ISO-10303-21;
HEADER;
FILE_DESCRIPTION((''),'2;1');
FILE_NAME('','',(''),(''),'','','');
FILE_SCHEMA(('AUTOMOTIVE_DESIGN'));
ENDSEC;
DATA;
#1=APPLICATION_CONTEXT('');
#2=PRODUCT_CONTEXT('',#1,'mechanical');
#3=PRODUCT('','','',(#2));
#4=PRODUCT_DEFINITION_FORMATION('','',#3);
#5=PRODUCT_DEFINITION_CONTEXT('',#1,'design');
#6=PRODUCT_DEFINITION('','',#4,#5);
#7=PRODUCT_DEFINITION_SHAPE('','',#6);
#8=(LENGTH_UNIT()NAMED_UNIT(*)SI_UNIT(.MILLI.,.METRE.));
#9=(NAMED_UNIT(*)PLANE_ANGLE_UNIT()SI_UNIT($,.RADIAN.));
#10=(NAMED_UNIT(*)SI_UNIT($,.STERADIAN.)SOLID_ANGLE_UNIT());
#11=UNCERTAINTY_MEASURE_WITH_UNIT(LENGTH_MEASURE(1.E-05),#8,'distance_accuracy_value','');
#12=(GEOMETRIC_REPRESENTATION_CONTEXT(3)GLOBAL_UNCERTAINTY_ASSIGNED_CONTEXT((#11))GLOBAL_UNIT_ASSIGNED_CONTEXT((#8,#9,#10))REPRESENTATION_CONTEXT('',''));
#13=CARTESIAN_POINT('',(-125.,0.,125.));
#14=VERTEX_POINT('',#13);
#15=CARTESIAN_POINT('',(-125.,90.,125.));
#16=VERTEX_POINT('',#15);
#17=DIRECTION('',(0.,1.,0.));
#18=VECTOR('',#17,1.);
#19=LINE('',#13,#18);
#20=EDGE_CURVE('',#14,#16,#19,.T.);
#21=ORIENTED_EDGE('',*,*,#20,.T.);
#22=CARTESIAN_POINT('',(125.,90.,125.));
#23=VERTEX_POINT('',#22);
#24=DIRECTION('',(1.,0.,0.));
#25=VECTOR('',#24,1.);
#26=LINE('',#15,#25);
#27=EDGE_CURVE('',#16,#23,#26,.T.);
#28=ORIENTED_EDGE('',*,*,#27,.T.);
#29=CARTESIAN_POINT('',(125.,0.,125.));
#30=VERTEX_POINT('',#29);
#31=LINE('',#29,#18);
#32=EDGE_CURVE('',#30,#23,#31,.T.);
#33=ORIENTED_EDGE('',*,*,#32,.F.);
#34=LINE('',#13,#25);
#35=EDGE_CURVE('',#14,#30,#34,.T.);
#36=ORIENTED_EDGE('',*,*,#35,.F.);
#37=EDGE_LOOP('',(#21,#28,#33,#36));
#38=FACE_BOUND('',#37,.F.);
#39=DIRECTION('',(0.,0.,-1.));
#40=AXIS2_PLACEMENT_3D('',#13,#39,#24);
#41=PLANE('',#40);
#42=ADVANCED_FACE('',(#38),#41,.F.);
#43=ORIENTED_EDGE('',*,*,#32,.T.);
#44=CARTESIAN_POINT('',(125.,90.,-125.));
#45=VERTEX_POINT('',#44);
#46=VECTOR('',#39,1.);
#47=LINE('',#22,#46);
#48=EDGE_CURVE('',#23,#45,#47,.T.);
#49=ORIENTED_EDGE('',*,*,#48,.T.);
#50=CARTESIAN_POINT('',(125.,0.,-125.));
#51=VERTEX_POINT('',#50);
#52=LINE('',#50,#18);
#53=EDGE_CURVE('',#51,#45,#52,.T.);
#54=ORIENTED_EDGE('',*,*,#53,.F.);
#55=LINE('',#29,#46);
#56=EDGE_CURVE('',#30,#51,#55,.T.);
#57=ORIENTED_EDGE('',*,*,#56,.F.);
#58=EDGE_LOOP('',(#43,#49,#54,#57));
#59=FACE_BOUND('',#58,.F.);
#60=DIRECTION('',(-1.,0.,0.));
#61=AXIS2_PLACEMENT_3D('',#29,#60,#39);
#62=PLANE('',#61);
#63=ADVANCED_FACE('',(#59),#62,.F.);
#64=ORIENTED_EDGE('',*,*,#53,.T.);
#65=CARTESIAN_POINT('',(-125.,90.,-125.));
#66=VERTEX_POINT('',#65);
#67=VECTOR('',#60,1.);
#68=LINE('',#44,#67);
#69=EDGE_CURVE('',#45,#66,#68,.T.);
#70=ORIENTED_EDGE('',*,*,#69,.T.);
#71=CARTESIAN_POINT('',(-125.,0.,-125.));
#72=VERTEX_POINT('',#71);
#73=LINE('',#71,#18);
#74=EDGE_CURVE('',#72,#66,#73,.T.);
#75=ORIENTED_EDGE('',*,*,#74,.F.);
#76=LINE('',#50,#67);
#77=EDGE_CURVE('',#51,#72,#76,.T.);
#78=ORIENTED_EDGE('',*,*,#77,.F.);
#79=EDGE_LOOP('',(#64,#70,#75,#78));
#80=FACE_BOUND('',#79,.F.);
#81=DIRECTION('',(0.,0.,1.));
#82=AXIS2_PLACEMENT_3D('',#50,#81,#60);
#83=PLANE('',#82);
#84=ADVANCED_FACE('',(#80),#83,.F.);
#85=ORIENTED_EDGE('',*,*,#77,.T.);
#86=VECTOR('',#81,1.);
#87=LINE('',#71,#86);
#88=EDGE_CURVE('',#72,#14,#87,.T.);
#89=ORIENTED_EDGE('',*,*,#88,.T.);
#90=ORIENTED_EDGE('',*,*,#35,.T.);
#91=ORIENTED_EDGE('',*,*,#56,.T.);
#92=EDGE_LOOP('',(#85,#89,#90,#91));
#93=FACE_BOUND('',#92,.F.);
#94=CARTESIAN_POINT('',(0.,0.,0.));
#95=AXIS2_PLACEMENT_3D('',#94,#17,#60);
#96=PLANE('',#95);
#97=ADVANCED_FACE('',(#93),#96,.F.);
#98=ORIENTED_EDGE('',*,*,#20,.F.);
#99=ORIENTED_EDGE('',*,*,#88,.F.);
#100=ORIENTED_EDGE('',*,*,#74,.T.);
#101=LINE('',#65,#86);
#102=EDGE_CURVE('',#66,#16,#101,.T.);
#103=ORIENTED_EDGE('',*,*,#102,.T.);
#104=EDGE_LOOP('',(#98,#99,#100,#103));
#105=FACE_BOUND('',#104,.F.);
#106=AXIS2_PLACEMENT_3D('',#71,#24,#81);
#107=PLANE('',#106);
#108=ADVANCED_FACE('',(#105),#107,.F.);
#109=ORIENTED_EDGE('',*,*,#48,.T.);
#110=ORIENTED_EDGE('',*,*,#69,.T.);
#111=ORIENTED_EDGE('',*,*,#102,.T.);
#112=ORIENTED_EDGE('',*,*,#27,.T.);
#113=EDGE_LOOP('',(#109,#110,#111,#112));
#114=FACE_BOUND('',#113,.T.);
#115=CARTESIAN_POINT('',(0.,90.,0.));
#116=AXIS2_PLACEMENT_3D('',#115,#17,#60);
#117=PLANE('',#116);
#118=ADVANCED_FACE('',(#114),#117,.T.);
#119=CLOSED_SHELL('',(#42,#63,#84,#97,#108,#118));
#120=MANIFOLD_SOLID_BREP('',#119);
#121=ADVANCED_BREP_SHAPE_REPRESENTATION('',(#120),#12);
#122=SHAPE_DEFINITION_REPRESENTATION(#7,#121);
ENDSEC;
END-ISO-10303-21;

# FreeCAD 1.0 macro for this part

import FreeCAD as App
import Part
import Sketcher
from FreeCAD import Vector

doc = App.newDocument("Part")
body = doc.addObject("PartDesign::Body", "Body")

# Sketch on XZ plane
sketch1 = body.newObject("Sketcher::SketchObject", "Sketch")
sketch1.AttachmentSupport = (doc.getObject("XZ_Plane"), [""])
sketch1.MapMode = "FlatFace"
sketch1.addGeometry([
    Part.LineSegment(Vector(-125, -125, 0), Vector(-125, 125, 0)),
    Part.LineSegment(Vector(-125, 125, 0), Vector(125, 125, 0)),
    Part.LineSegment(Vector(125, 125, 0), Vector(125, -125, 0)),
    Part.LineSegment(Vector(125, -125, 0), Vector(-125, -125, 0)),
], False)
sketch1.addConstraint([
    Sketcher.Constraint("Coincident", 0, 2, 1, 1),
    Sketcher.Constraint("Coincident", 1, 2, 2, 1),
    Sketcher.Constraint("Coincident", 2, 2, 3, 1),
    Sketcher.Constraint("Coincident", 3, 2, 0, 1),
    Sketcher.Constraint("Vertical", 0),
    Sketcher.Constraint("Horizontal", 1),
    Sketcher.Constraint("Vertical", 2),
    Sketcher.Constraint("Horizontal", 3),
    Sketcher.Constraint("Symmetric", 0, 2, 2, 2, -1, 1),
    Sketcher.Constraint("Equal", 3, 0),
    Sketcher.Constraint("DistanceX", 1, 1, 1, 2, 250.0),
])
pad1 = body.newObject("PartDesign::Pad", "Pad")
pad1.Profile = sketch1
pad1.Length = 90
pad1.Reversed = True

doc.recompute()
